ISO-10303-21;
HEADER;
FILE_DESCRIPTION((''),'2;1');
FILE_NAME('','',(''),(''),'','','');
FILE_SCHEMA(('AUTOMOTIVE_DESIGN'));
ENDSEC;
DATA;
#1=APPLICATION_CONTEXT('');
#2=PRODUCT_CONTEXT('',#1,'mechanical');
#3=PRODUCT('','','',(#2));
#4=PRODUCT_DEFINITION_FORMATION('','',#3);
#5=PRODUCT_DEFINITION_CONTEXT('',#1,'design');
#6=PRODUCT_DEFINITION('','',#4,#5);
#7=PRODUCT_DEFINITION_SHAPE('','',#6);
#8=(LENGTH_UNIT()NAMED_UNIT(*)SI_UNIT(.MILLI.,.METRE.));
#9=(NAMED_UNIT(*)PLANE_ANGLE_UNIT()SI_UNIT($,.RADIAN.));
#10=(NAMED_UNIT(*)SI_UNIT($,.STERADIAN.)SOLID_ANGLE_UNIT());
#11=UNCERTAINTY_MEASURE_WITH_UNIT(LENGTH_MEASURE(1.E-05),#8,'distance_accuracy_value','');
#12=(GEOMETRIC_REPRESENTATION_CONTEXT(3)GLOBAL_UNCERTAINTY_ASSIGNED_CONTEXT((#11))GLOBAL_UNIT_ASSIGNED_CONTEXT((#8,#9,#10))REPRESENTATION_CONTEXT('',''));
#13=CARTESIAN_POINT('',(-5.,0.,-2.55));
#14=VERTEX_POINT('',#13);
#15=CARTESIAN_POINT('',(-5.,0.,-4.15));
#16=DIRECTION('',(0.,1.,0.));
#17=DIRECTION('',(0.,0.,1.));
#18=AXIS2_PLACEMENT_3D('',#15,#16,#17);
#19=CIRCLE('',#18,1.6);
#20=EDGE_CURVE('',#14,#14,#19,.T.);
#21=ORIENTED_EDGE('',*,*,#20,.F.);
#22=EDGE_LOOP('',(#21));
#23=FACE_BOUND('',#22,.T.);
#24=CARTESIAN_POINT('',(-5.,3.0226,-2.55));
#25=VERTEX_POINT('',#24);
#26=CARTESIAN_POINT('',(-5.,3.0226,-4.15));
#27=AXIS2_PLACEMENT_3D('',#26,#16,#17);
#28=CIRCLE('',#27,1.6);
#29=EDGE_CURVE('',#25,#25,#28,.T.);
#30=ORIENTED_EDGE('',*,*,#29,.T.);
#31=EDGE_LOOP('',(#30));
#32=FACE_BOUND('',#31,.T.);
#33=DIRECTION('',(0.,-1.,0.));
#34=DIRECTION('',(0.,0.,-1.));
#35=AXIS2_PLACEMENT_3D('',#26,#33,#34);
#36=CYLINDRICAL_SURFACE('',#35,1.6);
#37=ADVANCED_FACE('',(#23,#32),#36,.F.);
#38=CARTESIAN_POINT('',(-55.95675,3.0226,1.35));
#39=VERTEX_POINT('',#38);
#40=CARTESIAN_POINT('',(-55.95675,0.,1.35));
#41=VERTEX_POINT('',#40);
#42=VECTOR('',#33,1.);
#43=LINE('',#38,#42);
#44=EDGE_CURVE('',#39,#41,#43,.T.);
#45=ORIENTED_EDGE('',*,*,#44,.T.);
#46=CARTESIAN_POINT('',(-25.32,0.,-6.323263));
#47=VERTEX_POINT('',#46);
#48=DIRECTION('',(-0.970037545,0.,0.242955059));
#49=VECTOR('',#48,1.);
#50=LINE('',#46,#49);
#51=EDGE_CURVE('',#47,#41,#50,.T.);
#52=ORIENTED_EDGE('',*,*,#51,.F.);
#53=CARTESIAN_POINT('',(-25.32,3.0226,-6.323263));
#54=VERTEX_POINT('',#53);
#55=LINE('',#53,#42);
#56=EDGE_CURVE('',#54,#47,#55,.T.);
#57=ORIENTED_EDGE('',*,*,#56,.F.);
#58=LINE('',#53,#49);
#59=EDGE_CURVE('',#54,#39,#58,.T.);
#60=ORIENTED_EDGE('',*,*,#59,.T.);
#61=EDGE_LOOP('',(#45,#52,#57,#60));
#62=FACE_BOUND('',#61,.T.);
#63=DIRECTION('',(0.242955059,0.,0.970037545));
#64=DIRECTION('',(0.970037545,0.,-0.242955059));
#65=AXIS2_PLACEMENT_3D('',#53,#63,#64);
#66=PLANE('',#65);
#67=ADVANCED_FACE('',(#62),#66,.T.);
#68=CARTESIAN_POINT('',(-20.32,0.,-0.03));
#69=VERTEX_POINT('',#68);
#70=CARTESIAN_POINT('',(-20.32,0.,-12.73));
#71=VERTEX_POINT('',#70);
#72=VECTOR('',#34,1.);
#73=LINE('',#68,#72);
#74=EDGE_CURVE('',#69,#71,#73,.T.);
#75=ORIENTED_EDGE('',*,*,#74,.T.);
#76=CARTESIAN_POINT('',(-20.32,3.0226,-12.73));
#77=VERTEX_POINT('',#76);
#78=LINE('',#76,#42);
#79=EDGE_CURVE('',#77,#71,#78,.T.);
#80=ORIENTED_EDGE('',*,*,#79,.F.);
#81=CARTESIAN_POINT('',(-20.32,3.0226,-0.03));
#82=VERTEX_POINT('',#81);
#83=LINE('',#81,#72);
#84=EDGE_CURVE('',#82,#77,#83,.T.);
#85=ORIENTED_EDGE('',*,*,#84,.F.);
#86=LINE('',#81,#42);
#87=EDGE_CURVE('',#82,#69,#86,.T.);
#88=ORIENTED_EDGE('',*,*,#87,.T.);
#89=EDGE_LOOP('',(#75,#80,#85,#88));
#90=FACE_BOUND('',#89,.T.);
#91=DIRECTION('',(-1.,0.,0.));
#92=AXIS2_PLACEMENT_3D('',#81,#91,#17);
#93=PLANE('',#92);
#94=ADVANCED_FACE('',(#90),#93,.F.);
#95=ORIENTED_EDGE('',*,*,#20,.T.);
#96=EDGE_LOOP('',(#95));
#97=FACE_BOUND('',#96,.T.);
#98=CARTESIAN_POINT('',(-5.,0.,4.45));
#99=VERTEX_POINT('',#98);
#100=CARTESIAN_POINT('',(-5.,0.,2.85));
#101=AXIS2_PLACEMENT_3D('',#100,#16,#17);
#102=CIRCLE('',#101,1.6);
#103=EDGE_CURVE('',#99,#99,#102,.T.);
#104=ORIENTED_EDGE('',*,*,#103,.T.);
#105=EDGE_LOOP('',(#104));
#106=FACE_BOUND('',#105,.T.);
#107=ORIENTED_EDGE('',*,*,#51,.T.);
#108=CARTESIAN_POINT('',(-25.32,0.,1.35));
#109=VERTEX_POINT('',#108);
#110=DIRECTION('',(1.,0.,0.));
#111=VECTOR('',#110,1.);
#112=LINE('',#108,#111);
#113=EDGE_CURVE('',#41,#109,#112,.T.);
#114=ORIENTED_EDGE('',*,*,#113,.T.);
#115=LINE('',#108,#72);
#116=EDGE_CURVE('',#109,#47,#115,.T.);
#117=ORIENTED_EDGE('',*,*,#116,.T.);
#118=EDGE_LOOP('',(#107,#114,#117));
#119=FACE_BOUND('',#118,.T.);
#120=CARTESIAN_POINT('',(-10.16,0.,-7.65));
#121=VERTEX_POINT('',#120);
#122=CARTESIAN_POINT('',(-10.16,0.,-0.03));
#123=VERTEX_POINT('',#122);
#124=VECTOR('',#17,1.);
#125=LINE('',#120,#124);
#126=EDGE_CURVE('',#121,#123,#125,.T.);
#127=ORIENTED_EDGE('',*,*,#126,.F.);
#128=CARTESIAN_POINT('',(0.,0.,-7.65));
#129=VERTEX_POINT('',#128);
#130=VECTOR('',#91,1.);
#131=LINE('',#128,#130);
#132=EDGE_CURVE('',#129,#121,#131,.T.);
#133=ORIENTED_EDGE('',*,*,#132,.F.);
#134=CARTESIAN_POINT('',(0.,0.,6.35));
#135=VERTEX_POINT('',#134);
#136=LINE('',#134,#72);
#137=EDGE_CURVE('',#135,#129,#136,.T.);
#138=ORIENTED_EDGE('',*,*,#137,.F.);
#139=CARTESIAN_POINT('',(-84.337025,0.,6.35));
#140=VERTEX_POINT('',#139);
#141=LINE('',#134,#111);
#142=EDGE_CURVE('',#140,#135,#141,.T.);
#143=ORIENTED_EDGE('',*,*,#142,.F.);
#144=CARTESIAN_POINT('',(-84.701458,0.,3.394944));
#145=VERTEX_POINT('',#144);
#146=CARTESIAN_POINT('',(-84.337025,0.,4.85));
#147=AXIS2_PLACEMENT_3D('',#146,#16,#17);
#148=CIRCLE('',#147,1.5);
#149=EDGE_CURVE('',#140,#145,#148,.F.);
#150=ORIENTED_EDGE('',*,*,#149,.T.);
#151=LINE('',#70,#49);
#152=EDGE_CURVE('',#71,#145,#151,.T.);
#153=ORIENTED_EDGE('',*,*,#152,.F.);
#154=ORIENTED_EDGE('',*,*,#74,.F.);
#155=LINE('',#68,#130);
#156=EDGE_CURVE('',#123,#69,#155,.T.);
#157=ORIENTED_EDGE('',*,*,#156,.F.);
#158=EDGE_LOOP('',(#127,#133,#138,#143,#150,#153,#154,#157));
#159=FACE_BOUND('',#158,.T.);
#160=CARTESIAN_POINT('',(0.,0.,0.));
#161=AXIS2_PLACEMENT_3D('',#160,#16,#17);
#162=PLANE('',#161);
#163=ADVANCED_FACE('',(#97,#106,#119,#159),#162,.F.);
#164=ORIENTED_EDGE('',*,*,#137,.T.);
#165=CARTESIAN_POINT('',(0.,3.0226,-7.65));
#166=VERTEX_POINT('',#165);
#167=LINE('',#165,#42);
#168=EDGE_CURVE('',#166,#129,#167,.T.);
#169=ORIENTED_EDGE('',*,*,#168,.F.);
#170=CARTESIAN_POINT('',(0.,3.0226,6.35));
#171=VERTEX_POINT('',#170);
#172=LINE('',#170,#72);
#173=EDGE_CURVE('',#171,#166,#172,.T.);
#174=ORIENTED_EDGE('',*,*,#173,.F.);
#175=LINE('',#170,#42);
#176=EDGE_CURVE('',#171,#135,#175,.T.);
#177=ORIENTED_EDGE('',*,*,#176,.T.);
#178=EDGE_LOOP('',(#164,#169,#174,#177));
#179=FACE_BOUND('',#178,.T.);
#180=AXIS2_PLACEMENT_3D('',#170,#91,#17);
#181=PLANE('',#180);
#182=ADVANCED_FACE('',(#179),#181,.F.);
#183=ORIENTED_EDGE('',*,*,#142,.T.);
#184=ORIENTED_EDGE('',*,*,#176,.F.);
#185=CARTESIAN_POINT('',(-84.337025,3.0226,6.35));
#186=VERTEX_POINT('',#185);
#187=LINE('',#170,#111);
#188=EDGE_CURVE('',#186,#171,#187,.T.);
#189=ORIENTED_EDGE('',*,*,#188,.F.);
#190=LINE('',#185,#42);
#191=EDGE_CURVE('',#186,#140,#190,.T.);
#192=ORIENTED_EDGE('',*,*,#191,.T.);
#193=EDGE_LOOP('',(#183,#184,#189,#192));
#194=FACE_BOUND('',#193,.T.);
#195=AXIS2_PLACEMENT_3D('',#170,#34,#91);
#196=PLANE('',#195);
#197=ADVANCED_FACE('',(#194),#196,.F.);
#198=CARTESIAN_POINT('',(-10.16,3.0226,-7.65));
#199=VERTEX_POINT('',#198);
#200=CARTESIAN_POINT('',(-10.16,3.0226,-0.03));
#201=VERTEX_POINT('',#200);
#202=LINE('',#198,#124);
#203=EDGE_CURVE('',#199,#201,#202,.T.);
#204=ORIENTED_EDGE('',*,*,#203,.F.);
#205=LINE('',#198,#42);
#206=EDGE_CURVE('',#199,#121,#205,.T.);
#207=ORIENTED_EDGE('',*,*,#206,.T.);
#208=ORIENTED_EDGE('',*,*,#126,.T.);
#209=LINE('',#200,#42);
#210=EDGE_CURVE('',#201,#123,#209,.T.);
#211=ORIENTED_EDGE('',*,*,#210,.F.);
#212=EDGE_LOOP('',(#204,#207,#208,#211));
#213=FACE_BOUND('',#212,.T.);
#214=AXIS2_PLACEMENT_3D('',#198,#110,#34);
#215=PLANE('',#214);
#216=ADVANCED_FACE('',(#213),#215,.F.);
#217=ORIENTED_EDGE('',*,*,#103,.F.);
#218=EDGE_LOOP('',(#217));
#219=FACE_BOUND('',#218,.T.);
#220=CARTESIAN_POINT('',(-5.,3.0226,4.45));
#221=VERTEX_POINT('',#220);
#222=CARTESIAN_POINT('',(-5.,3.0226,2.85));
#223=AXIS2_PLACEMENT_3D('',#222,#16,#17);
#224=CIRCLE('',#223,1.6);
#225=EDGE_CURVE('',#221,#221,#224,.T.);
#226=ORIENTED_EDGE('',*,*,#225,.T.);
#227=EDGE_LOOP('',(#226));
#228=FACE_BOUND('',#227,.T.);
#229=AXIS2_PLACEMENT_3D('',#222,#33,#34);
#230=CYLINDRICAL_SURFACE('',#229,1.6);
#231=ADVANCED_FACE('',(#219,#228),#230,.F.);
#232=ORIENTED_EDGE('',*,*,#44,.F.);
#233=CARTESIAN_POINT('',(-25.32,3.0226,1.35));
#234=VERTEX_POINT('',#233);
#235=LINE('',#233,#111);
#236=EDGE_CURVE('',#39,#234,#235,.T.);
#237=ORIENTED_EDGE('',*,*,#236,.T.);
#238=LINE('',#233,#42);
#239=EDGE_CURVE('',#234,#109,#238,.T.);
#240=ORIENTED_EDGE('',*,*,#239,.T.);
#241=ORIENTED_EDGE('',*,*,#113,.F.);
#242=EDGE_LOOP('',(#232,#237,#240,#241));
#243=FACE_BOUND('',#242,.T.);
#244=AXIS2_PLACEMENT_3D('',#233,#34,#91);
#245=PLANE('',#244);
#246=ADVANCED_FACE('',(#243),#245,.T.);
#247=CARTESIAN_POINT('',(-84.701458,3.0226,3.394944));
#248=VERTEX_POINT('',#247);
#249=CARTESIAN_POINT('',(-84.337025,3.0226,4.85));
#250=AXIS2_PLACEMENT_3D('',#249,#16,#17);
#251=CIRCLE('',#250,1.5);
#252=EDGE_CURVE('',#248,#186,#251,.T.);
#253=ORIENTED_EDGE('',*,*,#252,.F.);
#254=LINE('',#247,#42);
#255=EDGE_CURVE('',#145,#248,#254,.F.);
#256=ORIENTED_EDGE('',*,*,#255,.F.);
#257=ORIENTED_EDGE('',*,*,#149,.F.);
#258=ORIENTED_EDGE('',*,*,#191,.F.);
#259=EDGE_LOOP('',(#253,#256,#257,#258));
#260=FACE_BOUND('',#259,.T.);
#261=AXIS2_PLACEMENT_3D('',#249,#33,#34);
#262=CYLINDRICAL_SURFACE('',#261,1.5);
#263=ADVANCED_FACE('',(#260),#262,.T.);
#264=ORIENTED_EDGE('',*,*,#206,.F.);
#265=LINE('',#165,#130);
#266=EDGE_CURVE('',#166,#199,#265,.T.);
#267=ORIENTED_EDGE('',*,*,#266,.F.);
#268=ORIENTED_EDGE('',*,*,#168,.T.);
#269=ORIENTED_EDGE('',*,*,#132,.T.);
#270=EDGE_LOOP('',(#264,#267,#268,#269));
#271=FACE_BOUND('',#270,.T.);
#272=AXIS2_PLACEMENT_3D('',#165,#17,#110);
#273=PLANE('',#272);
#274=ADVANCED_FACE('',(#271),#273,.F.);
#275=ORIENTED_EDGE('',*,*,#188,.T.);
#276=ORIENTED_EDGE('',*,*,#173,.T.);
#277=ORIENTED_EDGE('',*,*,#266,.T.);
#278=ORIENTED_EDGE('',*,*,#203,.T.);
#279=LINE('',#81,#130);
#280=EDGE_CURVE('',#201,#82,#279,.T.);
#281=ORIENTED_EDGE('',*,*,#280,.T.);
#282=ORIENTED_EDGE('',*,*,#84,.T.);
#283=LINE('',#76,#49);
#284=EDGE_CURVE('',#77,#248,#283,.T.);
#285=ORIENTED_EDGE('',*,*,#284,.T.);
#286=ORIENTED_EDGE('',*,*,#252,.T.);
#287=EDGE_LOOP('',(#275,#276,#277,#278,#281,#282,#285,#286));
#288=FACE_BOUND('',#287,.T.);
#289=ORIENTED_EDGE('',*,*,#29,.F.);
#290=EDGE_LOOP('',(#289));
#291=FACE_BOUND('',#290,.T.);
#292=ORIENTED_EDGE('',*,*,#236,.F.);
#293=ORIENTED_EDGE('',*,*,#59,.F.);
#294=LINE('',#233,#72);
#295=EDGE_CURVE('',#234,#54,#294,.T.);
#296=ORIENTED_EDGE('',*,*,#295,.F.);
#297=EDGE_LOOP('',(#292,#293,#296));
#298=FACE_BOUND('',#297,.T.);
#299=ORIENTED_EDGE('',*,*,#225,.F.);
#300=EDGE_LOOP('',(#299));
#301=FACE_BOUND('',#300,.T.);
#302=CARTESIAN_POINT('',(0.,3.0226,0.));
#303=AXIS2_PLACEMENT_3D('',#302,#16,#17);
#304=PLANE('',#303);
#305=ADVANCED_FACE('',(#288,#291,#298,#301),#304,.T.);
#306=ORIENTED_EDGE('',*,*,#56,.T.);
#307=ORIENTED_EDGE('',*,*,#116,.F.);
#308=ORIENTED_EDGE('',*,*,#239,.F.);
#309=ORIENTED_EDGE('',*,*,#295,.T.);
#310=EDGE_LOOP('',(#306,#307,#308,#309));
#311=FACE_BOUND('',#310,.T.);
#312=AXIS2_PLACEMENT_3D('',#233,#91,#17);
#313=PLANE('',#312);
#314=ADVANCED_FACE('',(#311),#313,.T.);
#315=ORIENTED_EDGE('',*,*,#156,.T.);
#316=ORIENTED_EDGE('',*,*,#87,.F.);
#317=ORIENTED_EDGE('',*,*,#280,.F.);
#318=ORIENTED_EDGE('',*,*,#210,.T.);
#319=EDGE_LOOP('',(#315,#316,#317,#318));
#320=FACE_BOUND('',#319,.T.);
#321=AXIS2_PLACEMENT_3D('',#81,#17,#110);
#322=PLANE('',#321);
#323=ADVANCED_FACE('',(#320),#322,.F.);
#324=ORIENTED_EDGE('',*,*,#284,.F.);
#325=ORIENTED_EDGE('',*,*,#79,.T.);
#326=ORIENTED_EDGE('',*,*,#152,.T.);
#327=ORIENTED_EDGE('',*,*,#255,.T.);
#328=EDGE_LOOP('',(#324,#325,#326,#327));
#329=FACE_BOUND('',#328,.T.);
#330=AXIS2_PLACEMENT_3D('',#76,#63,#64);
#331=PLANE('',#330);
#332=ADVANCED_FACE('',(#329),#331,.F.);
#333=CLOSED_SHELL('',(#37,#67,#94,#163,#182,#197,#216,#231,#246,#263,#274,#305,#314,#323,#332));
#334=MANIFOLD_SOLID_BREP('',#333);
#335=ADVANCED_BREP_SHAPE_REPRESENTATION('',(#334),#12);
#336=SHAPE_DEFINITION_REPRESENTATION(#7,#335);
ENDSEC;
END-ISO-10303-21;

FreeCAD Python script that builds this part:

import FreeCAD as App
import Part
import Sketcher

V = App.Vector
Q = App.Units.Quantity


def edges_at(feature, points):
    """Names of the edges that pass closest to the given points."""
    edges = feature.Shape.Edges
    near = lambda p: min(range(len(edges)), key=lambda i: edges[i].distToShape(Part.Vertex(*p))[0])
    return sorted({f"Edge{near(p) + 1}" for p in points})

doc = App.newDocument("Part")
body = doc.addObject("PartDesign::Body", "Body")

sketch1 = doc.addObject("Sketcher::SketchObject", "Sketch")
body.addObject(sketch1)
sketch1.AttachmentSupport = (doc.XZ_Plane, [""])
sketch1.MapMode = "FlatFace"
sketch1.addGeometry([
    Part.LineSegment(V(-96.5, 6.3, 0), V(0, 6.3, 0)),
    Part.LineSegment(V(0, 6.3, 0), V(0, -7.7, 0)),
    Part.LineSegment(V(0, -7.7, 0), V(-10.2, -7.7, 0)),
    Part.LineSegment(V(-10.2, -7.7, 0), V(-10.2, 0, 0)),
    Part.LineSegment(V(-10.2, 0, 0), V(-20.3, 0, 0)),
    Part.LineSegment(V(-20.3, 0, 0), V(-20.3, -12.7, 0)),
    Part.LineSegment(V(-20.3, -12.7, 0), V(-96.5, 6.3, 0)),
    Part.Circle(V(-5, 2.9, 0), V(0, 0, 1), 1.6),
    Part.Circle(V(-5, -4.2, 0), V(0, 0, 1), 1.6),
    Part.LineSegment(V(-25.3, 1.4, 0), V(-56, 1.4, 0)),
    Part.LineSegment(V(-56, 1.4, 0), V(-25.3, -6.3, 0)),
    Part.LineSegment(V(-25.3, -6.3, 0), V(-25.3, 1.4, 0)),
], False)
sketch1.addConstraint([
    Sketcher.Constraint("Coincident", 0, 2, 1, 1),
    Sketcher.Constraint("Coincident", 1, 2, 2, 1),
    Sketcher.Constraint("Coincident", 2, 2, 3, 1),
    Sketcher.Constraint("Coincident", 3, 2, 4, 1),
    Sketcher.Constraint("Coincident", 4, 2, 5, 1),
    Sketcher.Constraint("Coincident", 5, 2, 6, 1),
    Sketcher.Constraint("Coincident", 6, 2, 0, 1),
    Sketcher.Constraint("Coincident", 9, 2, 10, 1),
    Sketcher.Constraint("Coincident", 10, 2, 11, 1),
    Sketcher.Constraint("Coincident", 11, 2, 9, 1),
    Sketcher.Constraint("Horizontal", 0),
    Sketcher.Constraint("Vertical", 1),
    Sketcher.Constraint("Horizontal", 2),
    Sketcher.Constraint("Vertical", 3),
    Sketcher.Constraint("Horizontal", 4),
    Sketcher.Constraint("Vertical", 5),
    Sketcher.Constraint("Horizontal", 9),
    Sketcher.Constraint("Vertical", 11),
    Sketcher.Constraint("Equal", 7, 8),
    Sketcher.Constraint("PointOnObject", 0, 2, -2),
    Sketcher.Constraint("Parallel", 6, 10),
    Sketcher.Constraint("Vertical", 7, 3, 8, 3),
    Sketcher.Constraint("Equal", 2, 4),
    Sketcher.Constraint("Diameter", 7, Q("3.2 mm")),
    Sketcher.Constraint("DistanceY", 1, 2, 1, 1, Q("14 mm")),
    Sketcher.Constraint("DistanceX", 0, 1, 0, 2, Q("96.5 mm")),
    Sketcher.Constraint("DistanceY", 5, 2, 5, 1, Q("12.7 mm")),
    Sketcher.Constraint("DistanceX", 7, 3, -1, 1, Q("5 mm")),
    Sketcher.Constraint("DistanceY", 8, 3, 7, 3, Q("7 mm")),
    Sketcher.Constraint("DistanceY", 9, 2, 6, 2, Q("5 mm")),
    Sketcher.Constraint("DistanceX", 10, 2, 4, 2, Q("5 mm")),
    Sketcher.Constraint("DistanceX", 2, 2, 2, 1, Q("10.16 mm")),
    Sketcher.Constraint("DistanceY", 3, 1, 3, 2, Q("7.62 mm")),
    Sketcher.Constraint("DistanceY", 7, 3, 0, 2, Q("3.5 mm")),
    Sketcher.Constraint("DistanceY", -1, 1, 7, 3, Q("2.85 mm")),
    Sketcher.Constraint("DistanceX", 9, 2, 9, 1, Q("30.63675 mm")),
])
pad1 = doc.addObject("PartDesign::Pad", "Pad")
body.addObject(pad1)
pad1.Profile = sketch1
pad1.Length = 3.0226
pad1.Reversed = True
doc.recompute()

fillet = doc.addObject("PartDesign::Fillet", "Fillet")
body.addObject(fillet)
fillet.Base = (pad1, edges_at(pad1, [(-96.5, 1.511, 6.35)]))
fillet.Radius = 1.5

doc.recompute()
